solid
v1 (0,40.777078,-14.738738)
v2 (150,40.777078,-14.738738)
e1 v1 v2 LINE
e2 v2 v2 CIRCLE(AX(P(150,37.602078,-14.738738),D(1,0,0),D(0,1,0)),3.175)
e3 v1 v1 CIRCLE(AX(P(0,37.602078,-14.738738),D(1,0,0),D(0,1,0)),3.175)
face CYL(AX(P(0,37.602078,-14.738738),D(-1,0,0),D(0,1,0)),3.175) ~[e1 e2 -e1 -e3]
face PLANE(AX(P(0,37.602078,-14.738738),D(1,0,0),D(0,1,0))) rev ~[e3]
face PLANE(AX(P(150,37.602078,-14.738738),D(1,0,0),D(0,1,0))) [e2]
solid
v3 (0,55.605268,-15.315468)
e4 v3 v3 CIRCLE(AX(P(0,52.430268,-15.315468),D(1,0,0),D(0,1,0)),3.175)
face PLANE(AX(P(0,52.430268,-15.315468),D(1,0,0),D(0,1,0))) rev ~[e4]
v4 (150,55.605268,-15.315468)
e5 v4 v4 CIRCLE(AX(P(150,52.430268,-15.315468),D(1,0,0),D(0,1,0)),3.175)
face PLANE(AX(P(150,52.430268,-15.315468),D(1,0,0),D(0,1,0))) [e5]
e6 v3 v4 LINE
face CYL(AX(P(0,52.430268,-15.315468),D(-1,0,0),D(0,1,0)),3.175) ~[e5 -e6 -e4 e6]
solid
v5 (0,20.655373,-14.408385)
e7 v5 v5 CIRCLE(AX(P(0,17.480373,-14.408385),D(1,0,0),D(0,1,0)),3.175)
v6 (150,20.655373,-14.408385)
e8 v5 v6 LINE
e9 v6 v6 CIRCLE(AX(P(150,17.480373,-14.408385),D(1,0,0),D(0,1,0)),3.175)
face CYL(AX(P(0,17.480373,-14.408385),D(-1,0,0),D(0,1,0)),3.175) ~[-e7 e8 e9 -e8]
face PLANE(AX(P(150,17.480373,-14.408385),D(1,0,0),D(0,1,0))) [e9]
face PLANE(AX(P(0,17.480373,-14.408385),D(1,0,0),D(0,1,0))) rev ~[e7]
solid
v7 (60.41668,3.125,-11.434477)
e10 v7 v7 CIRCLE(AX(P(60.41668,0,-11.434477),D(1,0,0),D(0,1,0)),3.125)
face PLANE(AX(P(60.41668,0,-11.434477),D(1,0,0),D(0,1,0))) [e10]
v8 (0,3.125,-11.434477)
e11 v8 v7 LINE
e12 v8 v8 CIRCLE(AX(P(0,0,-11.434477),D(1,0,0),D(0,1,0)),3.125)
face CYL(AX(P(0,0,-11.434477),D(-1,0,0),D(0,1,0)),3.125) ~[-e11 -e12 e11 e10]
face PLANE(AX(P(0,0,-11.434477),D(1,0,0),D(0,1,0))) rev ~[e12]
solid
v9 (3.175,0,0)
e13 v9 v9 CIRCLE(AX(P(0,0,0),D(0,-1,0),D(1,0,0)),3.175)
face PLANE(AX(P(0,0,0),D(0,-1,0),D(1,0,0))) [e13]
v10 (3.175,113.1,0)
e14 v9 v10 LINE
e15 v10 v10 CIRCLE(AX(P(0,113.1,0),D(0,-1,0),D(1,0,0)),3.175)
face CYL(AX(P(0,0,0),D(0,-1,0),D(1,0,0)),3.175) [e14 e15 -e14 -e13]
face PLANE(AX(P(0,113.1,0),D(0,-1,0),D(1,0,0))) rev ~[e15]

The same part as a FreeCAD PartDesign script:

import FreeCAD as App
import Part
import Sketcher
Q = App.Units.Quantity

doc = App.newDocument("Part")
body = doc.addObject("PartDesign::Body", "Body")

sketch1 = body.newObject("Sketcher::SketchObject", "Sketch")
sketch1.AttachmentSupport = (doc.getObject("XZ_Plane"), [""])
sketch1.MapMode = "FlatFace"
sketch1.addGeometry(Part.Circle(App.Vector(0, 0, 0), App.Vector(0, 0, 1), 3.2), False)
sketch1.addConstraint(Sketcher.Constraint("Coincident", 0, 3, -1, 1))
sketch1.addConstraint(Sketcher.Constraint("Diameter", 0, Q("6.35 mm")))
pad1 = body.newObject("PartDesign::Pad", "Pad")
pad1.Profile = sketch1
pad1.Length = 113.1
pad1.Reversed = True
body2 = doc.addObject("PartDesign::Body", "Body001")

sketch2 = body2.newObject("Sketcher::SketchObject", "Sketch001")
sketch2.AttachmentSupport = (doc.getObject("YZ_Plane001"), [""])
sketch2.MapMode = "FlatFace"
sketch2.addGeometry(Part.Circle(App.Vector(0, -11.4, 0), App.Vector(0, 0, 1), 3.1), False)
sketch2.addConstraint(Sketcher.Constraint("PointOnObject", 0, 3, -2))
sketch2.addConstraint(Sketcher.Constraint("Diameter", 0, Q("6.25 mm")))
sketch2.addConstraint(Sketcher.Constraint("DistanceY", 0, 3, -1, 1, Q("11.434477 mm")))
pad2 = body2.newObject("PartDesign::Pad", "Pad001")
pad2.Profile = sketch2
pad2.Length = 60.41668
body3 = doc.addObject("PartDesign::Body", "Body002")

sketch3 = body3.newObject("Sketcher::SketchObject", "Sketch002")
sketch3.AttachmentSupport = (doc.getObject("YZ_Plane002"), [""])
sketch3.MapMode = "FlatFace"
sketch3.addGeometry(Part.Circle(App.Vector(17.5, -14.4, 0), App.Vector(0, 0, 1), 3.2), False)
sketch3.addConstraint(Sketcher.Constraint("Diameter", 0, Q("6.35 mm")))
sketch3.addConstraint(Sketcher.Constraint("DistanceX", -1, 1, 0, 3, Q("17.480373 mm")))
sketch3.addConstraint(Sketcher.Constraint("DistanceY", 0, 3, -1, 1, Q("14.408385 mm")))
pad3 = body3.newObject("PartDesign::Pad", "Pad002")
pad3.Profile = sketch3
pad3.Length = 150
body4 = doc.addObject("PartDesign::Body", "Body003")

sketch4 = body4.newObject("Sketcher::SketchObject", "Sketch003")
sketch4.AttachmentSupport = (doc.getObject("YZ_Plane003"), [""])
sketch4.MapMode = "FlatFace"
sketch4.addGeometry(Part.Circle(App.Vector(37.6, -14.7, 0), App.Vector(0, 0, 1), 3.2), False)
sketch4.addConstraint(Sketcher.Constraint("Diameter", 0, Q("6.35 mm")))
sketch4.addConstraint(Sketcher.Constraint("DistanceX", -1, 1, 0, 3, Q("37.602078 mm")))
sketch4.addConstraint(Sketcher.Constraint("DistanceY", 0, 3, -1, 1, Q("14.738738 mm")))
pad4 = body4.newObject("PartDesign::Pad", "Pad003")
pad4.Profile = sketch4
pad4.Length = 150
body5 = doc.addObject("PartDesign::Body", "Body004")

sketch5 = body5.newObject("Sketcher::SketchObject", "Sketch004")
sketch5.AttachmentSupport = (doc.getObject("YZ_Plane004"), [""])
sketch5.MapMode = "FlatFace"
sketch5.addGeometry(Part.Circle(App.Vector(52.4, -15.3, 0), App.Vector(0, 0, 1), 3.2), False)
sketch5.addConstraint(Sketcher.Constraint("Diameter", 0, Q("6.35 mm")))
sketch5.addConstraint(Sketcher.Constraint("DistanceX", -1, 1, 0, 3, Q("52.430268 mm")))
sketch5.addConstraint(Sketcher.Constraint("DistanceY", 0, 3, -1, 1, Q("15.315468 mm")))
pad5 = body5.newObject("PartDesign::Pad", "Pad004")
pad5.Profile = sketch5
pad5.Length = 150

doc.recompute()
